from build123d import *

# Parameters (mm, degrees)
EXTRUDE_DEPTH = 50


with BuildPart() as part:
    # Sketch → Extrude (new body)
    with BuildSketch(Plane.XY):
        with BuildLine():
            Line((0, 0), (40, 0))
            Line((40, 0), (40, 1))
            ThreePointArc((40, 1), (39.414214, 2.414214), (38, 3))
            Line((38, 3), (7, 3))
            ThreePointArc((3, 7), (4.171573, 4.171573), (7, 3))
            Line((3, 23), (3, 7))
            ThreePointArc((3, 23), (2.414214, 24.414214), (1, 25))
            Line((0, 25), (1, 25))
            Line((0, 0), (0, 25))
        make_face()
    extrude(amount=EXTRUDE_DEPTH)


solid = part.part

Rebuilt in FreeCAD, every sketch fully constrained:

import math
import FreeCAD as App
import Part
import Sketcher
Q = App.Units.Quantity

doc = App.newDocument("Part")
body = doc.addObject("PartDesign::Body", "Body")

sketch1 = body.newObject("Sketcher::SketchObject", "Sketch")
sketch1.AttachmentSupport = (doc.getObject("XY_Plane"), [""])
sketch1.MapMode = "FlatFace"
sketch1.addGeometry([
    Part.LineSegment(App.Vector(0, 0, 0), App.Vector(40, 0, 0)),
    Part.LineSegment(App.Vector(40, 0, 0), App.Vector(40, 1, 0)),
    Part.ArcOfCircle(Part.Circle(App.Vector(38, 1, 0), App.Vector(0, 0, 1), 2), math.radians(0), math.radians(90)),
    Part.LineSegment(App.Vector(38, 3, 0), App.Vector(7, 3, 0)),
    Part.ArcOfCircle(Part.Circle(App.Vector(7, 7, 0), App.Vector(0, 0, 1), 4), math.radians(-180), math.radians(-90)),
    Part.LineSegment(App.Vector(3, 7, 0), App.Vector(3, 23, 0)),
    Part.ArcOfCircle(Part.Circle(App.Vector(1, 23, 0), App.Vector(0, 0, 1), 2), math.radians(0), math.radians(90)),
    Part.LineSegment(App.Vector(1, 25, 0), App.Vector(0, 25, 0)),
    Part.LineSegment(App.Vector(0, 25, 0), App.Vector(0, 0, 0)),
], False)
sketch1.addConstraint([
    Sketcher.Constraint("Coincident", 0, 2, 1, 1),
    Sketcher.Constraint("Tangent", 1, 2, 2, 1),
    Sketcher.Constraint("Tangent", 2, 2, 3, 1),
    Sketcher.Constraint("Tangent", 3, 2, 4, 2),
    Sketcher.Constraint("Tangent", 4, 1, 5, 1),
    Sketcher.Constraint("Tangent", 5, 2, 6, 1),
    Sketcher.Constraint("Tangent", 6, 2, 7, 1),
    Sketcher.Constraint("Coincident", 7, 2, 8, 1),
    Sketcher.Constraint("Coincident", 8, 2, 0, 1),
    Sketcher.Constraint("Horizontal", 0),
    Sketcher.Constraint("Vertical", 1),
    Sketcher.Constraint("Horizontal", 3),
    Sketcher.Constraint("Vertical", 5),
    Sketcher.Constraint("Horizontal", 7),
    Sketcher.Constraint("Vertical", 8),
    Sketcher.Constraint("Coincident", 8, 2, -1, 1),
    Sketcher.Constraint("Equal", 2, 6),
    Sketcher.Constraint("Equal", 7, 1),
    Sketcher.Constraint("Radius", 2, Q("1.999999 mm")),
    Sketcher.Constraint("Radius", 4, Q("4 mm")),
    Sketcher.Constraint("DistanceX", 0, 1, 0, 2, Q("40 mm")),
    Sketcher.Constraint("DistanceX", 3, 2, 3, 1, Q("31 mm")),
    Sketcher.Constraint("DistanceY", 5, 1, 5, 2, Q("16 mm")),
])
pad1 = body.newObject("PartDesign::Pad", "Pad")
pad1.Profile = sketch1
pad1.Length = 50

doc.recompute()
